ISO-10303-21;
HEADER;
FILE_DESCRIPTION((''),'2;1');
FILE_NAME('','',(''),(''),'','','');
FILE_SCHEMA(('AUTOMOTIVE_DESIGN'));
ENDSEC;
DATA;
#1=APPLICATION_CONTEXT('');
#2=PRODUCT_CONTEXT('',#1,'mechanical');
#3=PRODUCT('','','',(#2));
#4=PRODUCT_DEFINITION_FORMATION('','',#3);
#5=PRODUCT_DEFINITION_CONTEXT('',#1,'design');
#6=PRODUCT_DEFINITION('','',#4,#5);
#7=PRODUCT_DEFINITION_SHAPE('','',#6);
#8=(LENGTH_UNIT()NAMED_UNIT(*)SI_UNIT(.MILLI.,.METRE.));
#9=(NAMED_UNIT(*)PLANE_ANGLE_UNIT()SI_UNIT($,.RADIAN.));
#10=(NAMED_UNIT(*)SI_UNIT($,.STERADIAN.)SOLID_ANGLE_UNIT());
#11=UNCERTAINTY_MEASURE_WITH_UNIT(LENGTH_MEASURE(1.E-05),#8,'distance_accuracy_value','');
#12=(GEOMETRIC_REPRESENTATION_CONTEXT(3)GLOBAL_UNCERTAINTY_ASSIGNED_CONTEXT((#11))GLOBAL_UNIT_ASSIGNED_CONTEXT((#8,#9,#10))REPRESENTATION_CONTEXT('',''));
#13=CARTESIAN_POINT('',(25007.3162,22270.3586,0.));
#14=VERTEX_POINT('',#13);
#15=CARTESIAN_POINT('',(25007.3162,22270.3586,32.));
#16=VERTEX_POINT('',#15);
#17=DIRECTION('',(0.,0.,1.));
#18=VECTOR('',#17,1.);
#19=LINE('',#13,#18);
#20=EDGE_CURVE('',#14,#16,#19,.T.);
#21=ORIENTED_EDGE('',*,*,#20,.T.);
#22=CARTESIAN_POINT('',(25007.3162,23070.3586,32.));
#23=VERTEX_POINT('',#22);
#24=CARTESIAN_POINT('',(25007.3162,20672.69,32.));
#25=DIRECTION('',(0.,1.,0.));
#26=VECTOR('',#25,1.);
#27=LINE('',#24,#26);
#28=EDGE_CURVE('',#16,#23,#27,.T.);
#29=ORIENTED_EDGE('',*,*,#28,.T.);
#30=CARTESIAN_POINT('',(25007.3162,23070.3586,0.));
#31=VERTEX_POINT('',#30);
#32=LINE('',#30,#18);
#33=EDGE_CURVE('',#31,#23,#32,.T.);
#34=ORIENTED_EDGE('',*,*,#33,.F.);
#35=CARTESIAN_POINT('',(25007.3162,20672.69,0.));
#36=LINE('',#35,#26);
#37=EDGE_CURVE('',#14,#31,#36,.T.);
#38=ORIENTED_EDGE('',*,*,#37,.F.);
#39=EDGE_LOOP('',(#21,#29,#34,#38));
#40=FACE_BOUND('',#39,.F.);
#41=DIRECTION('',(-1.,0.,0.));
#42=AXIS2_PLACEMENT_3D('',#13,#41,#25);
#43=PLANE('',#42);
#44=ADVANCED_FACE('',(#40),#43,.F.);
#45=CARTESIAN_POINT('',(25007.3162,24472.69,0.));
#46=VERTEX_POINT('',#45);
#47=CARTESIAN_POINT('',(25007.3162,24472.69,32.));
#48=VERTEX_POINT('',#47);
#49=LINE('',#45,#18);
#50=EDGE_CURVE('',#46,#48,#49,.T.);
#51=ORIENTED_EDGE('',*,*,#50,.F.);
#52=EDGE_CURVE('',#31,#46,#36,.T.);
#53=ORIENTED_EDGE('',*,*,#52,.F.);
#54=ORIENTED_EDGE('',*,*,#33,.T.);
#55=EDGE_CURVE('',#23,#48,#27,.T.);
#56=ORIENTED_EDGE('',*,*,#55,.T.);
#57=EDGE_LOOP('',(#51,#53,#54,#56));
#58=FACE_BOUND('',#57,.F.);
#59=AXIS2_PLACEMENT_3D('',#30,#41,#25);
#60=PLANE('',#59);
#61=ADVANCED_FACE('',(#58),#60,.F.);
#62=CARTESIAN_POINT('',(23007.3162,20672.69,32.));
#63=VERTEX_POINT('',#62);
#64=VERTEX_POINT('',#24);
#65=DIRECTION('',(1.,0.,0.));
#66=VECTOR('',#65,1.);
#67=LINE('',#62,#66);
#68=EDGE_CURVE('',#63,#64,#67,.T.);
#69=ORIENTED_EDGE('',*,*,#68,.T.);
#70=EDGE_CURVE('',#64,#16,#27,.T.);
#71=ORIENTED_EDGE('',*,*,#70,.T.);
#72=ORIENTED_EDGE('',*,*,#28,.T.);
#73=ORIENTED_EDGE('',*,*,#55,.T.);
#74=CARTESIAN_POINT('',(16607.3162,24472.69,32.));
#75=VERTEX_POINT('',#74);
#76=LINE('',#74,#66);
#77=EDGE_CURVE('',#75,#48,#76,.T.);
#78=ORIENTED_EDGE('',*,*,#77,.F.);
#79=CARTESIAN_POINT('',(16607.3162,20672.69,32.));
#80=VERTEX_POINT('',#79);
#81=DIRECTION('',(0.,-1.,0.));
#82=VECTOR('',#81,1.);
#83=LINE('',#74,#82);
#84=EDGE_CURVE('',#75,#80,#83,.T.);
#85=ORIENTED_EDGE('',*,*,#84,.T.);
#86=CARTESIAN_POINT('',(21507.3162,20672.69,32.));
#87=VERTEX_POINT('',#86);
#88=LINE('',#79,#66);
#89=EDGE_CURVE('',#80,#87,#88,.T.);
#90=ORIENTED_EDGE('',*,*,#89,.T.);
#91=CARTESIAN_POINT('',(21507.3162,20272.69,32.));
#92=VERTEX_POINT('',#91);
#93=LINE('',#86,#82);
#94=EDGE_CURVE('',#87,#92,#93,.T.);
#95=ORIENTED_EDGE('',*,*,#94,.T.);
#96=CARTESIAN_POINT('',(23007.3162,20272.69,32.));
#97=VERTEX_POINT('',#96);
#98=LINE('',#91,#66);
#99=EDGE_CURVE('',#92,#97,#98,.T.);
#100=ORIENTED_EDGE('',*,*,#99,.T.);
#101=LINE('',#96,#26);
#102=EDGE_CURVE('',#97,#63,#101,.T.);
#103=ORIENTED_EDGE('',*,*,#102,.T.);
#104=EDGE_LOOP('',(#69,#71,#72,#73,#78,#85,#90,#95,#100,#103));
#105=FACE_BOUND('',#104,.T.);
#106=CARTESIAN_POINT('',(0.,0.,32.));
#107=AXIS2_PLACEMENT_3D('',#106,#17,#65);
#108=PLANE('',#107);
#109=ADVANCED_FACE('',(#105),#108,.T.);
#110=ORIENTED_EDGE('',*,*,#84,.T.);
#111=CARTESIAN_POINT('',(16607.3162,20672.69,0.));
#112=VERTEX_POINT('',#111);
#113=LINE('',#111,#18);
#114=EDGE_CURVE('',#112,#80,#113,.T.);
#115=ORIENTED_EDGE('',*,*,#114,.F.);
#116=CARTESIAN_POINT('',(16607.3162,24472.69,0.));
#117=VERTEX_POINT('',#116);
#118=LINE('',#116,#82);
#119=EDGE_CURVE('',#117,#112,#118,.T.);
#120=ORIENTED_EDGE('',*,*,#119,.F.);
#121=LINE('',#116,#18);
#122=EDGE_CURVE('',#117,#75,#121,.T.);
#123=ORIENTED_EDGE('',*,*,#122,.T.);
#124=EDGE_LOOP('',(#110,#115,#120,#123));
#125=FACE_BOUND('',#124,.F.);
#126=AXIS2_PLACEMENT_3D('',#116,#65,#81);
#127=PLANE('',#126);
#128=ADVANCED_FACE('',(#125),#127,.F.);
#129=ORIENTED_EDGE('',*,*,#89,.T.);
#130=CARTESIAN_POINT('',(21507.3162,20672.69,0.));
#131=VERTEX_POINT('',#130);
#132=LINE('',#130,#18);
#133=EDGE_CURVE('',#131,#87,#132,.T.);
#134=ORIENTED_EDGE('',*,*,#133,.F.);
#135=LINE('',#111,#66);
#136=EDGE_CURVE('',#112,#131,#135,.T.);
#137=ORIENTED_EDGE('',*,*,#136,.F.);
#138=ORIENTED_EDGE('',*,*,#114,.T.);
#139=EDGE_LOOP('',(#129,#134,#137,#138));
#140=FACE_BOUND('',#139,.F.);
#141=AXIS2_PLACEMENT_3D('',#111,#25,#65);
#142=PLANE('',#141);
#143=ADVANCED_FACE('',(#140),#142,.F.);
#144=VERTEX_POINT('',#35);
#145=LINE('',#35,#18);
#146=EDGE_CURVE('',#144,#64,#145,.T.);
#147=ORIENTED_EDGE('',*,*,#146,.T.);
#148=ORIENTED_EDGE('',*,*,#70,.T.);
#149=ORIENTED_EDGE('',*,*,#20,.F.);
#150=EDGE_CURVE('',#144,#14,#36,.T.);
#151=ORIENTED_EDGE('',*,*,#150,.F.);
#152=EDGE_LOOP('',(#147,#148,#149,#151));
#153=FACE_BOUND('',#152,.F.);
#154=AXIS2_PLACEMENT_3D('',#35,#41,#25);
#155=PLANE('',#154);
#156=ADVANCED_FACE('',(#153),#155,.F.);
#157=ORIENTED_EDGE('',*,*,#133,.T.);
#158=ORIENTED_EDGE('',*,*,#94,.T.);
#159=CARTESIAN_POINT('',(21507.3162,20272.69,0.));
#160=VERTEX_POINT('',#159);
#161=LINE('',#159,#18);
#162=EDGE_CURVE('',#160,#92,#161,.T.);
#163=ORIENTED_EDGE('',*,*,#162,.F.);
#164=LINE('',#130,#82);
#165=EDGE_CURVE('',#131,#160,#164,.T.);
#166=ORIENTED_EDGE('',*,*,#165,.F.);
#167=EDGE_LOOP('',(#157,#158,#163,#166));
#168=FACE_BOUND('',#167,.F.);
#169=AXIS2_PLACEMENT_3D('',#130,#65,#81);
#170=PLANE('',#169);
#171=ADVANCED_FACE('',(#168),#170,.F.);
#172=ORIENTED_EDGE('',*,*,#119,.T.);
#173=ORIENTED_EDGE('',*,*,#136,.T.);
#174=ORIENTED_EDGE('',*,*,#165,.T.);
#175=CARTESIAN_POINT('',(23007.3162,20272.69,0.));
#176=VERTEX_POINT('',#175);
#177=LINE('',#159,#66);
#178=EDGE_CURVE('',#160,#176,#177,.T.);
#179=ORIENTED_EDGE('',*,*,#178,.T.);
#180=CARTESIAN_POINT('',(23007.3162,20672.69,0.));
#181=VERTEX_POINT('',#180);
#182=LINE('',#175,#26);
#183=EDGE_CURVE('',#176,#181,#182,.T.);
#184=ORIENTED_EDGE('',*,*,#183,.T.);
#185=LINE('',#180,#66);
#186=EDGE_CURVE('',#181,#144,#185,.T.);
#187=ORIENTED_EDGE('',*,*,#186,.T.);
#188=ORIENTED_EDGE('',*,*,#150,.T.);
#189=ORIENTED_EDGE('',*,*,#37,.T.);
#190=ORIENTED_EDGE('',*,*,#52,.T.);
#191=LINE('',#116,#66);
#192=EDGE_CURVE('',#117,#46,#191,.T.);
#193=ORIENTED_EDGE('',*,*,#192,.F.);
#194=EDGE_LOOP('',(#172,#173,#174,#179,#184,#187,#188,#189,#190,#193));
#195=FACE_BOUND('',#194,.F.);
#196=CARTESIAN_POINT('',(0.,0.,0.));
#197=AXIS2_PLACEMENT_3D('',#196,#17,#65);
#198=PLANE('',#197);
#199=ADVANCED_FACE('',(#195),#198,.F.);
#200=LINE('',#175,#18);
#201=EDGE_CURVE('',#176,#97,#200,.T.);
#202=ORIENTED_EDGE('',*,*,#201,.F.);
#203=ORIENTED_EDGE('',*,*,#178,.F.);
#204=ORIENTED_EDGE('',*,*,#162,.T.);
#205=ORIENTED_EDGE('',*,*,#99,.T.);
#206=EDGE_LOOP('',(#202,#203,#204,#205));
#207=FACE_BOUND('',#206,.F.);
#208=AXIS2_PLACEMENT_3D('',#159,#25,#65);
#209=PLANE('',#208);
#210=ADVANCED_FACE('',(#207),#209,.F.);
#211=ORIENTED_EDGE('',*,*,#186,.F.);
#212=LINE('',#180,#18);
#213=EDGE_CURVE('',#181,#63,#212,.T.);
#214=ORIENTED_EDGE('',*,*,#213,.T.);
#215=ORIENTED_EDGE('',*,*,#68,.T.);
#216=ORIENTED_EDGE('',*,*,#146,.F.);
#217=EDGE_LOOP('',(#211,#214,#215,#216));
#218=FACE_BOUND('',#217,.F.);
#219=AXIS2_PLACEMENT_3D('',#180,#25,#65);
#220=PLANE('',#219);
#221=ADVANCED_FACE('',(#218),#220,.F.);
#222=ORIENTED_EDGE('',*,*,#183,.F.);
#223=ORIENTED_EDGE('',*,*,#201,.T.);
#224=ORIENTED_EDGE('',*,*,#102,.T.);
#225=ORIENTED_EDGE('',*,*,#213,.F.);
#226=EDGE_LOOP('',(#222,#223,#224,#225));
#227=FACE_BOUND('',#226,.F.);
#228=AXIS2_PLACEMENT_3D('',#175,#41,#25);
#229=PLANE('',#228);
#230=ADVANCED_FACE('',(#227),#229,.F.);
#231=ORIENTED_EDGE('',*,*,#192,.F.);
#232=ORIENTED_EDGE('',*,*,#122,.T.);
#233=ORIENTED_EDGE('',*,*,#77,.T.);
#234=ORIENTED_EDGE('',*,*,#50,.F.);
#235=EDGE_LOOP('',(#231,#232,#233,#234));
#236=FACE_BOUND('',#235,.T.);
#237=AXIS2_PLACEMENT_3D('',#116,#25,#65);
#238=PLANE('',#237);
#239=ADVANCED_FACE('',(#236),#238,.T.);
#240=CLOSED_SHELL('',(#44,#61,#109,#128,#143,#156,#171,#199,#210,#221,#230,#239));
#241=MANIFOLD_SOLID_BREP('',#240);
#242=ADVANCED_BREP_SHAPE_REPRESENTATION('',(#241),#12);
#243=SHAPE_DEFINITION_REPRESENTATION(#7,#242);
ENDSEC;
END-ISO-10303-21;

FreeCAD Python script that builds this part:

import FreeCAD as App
import Part
import Sketcher

V = App.Vector


def add_polygon(sketch, points):
    """Adds a closed chain of lines whose ends are joined by coincident constraints."""
    first, n = sketch.GeometryCount, len(points)
    for a, b in zip(points, points[1:] + points[:1]):
        sketch.addGeometry(Part.LineSegment(App.Vector(*a, 0), App.Vector(*b, 0)), False)
    for i in range(n):
        sketch.addConstraint(Sketcher.Constraint("Coincident", first + i, 2, first + (i + 1) % n, 1))

doc = App.newDocument("Part")
body = doc.addObject("PartDesign::Body", "Body")

sketch1 = doc.addObject("Sketcher::SketchObject", "Sketch")
body.addObject(sketch1)
sketch1.AttachmentSupport = (doc.XY_Plane, [""])
sketch1.MapMode = "FlatFace"
add_polygon(sketch1, [(23007.3162, 20672.69), (25007.3162, 20672.69), (25007.3162, 24472.69), (16607.3162, 24472.69), (16607.3162, 20672.69), (21507.3162, 20672.69), (21507.3162, 20272.69), (23007.3162, 20272.69)])
sketch1.addConstraint([
    Sketcher.Constraint("Horizontal", 0),
    Sketcher.Constraint("Vertical", 1),
    Sketcher.Constraint("Horizontal", 2),
    Sketcher.Constraint("Vertical", 3),
    Sketcher.Constraint("Horizontal", 4),
    Sketcher.Constraint("Vertical", 5),
    Sketcher.Constraint("Horizontal", 6),
    Sketcher.Constraint("Vertical", 7),
    Sketcher.Constraint("Horizontal", 0, 2, 3, 2),
    Sketcher.Constraint("DistanceX", 0, 1, 0, 2, 2000.0),
    Sketcher.Constraint("DistanceX", 2, 2, 2, 1, 8400.0),
    Sketcher.Constraint("DistanceX", 4, 1, 4, 2, 4900.0),
    Sketcher.Constraint("DistanceY", 1, 1, 1, 2, 3800.0),
    Sketcher.Constraint("DistanceY", 5, 2, 5, 1, 400.0),
    Sketcher.Constraint("DistanceY", -1, 1, 0, 2, 20672.69),
    Sketcher.Constraint("DistanceX", -1, 1, 0, 2, 25007.3162),
])
pad1 = doc.addObject("PartDesign::Pad", "Pad")
body.addObject(pad1)
pad1.Profile = sketch1
pad1.Length = 32

doc.recompute()
